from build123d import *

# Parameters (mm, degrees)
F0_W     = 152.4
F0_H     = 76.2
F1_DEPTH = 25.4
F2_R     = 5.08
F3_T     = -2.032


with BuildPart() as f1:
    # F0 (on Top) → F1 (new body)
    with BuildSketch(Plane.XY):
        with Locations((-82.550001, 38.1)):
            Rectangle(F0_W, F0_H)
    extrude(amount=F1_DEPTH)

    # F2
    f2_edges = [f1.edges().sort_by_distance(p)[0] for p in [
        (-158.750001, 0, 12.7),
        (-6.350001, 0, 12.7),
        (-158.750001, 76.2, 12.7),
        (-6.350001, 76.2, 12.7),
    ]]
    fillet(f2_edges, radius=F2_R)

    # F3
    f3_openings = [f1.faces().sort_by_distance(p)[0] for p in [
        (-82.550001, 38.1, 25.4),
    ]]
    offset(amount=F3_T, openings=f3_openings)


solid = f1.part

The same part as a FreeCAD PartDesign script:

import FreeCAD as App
import Part
import Sketcher
from FreeCAD import Vector
Q = App.Units.Quantity


def edges_at(feature, points):
    """Names of the edges that pass closest to the given points."""
    edges = feature.Shape.Edges
    near = lambda p: min(range(len(edges)), key=lambda i: edges[i].distToShape(Part.Vertex(*p))[0])
    return sorted({f"Edge{near(p) + 1}" for p in points})


def faces_at(feature, points):
    """Names of the faces that lie closest to the given points."""
    faces = feature.Shape.Faces
    near = lambda p: min(range(len(faces)), key=lambda i: faces[i].distToShape(Part.Vertex(*p))[0])
    return sorted({f"Face{near(p) + 1}" for p in points})

doc = App.newDocument("Part")
body = doc.addObject("PartDesign::Body", "Body")

sketch1 = body.newObject("Sketcher::SketchObject", "Sketch")
sketch1.AttachmentSupport = (doc.getObject("XY_Plane"), [""])
sketch1.MapMode = "FlatFace"
sketch1.addGeometry([
    Part.LineSegment(Vector(-158.750001, 76.2, 0), Vector(-158.750001, 0, 0)),
    Part.LineSegment(Vector(-158.750001, 0, 0), Vector(-6.350001, 0, 0)),
    Part.LineSegment(Vector(-6.350001, 0, 0), Vector(-6.350001, 76.2, 0)),
    Part.LineSegment(Vector(-6.350001, 76.2, 0), Vector(-158.750001, 76.2, 0)),
], False)
sketch1.addConstraint([
    Sketcher.Constraint("Coincident", 0, 2, 1, 1),
    Sketcher.Constraint("Coincident", 1, 2, 2, 1),
    Sketcher.Constraint("Coincident", 2, 2, 3, 1),
    Sketcher.Constraint("Coincident", 3, 2, 0, 1),
    Sketcher.Constraint("Vertical", 0),
    Sketcher.Constraint("Horizontal", 1),
    Sketcher.Constraint("Vertical", 2),
    Sketcher.Constraint("Horizontal", 3),
    Sketcher.Constraint("PointOnObject", 0, 2, -1),
    Sketcher.Constraint("DistanceX", 1, 1, 1, 2, Q("6 in")),
    Sketcher.Constraint("DistanceY", 0, 2, 0, 1, Q("3 in")),
    Sketcher.Constraint("DistanceX", 0, 2, -1, 1, Q("6.25 in")),
])
pad1 = body.newObject("PartDesign::Pad", "Pad")
pad1.Profile = sketch1
pad1.Length = Q("1 in")
doc.recompute()

fillet = body.newObject("PartDesign::Fillet", "Fillet")
fillet.Base = (pad1, edges_at(pad1, [
    (-158.75, 0, 12.7),
    (-6.35, 0, 12.7),
    (-158.75, 76.2, 12.7),
    (-6.35, 76.2, 12.7),
]))
fillet.Radius = Q("0.2 in")
doc.recompute()

thickness = body.newObject("PartDesign::Thickness", "Thickness")
thickness.Base = (fillet, faces_at(fillet, [(-82.55, 38.1, 25.4)]))
thickness.Value = Q("0.08 in")
thickness.Reversed = True
thickness.Join = "Arc"

doc.recompute()
